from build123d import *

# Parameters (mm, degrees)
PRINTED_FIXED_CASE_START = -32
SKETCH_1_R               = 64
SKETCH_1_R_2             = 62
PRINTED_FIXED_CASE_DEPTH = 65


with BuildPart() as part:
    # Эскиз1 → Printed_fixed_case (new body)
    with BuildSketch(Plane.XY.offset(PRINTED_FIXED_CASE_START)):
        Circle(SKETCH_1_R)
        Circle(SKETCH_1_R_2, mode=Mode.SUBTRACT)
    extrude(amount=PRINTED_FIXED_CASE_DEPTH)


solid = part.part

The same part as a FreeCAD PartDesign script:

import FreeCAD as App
import Part
import Sketcher
from FreeCAD import Vector

doc = App.newDocument("Part")
body = doc.addObject("PartDesign::Body", "Body")

sketch1 = body.newObject("Sketcher::SketchObject", "Sketch")
sketch1.AttachmentSupport = (doc.getObject("XY_Plane"), [""])
sketch1.MapMode = "FlatFace"
sketch1.AttachmentOffset = App.Placement(Vector(0, 0, -32), App.Rotation())
sketch1.addGeometry(Part.Circle(Vector(0, 0, 0), Vector(0, 0, 1), 64), False)
sketch1.addGeometry(Part.Circle(Vector(0, 0, 0), Vector(0, 0, 1), 62), False)
sketch1.addConstraint(Sketcher.Constraint("Coincident", 0, 3, -1, 1))
sketch1.addConstraint(Sketcher.Constraint("Coincident", 1, 3, -1, 1))
sketch1.addConstraint(Sketcher.Constraint("Diameter", 0, 128.0))
sketch1.addConstraint(Sketcher.Constraint("Diameter", 1, 124.0))
pad1 = body.newObject("PartDesign::Pad", "Pad")
pad1.Profile = sketch1
pad1.Length = 65

doc.recompute()
